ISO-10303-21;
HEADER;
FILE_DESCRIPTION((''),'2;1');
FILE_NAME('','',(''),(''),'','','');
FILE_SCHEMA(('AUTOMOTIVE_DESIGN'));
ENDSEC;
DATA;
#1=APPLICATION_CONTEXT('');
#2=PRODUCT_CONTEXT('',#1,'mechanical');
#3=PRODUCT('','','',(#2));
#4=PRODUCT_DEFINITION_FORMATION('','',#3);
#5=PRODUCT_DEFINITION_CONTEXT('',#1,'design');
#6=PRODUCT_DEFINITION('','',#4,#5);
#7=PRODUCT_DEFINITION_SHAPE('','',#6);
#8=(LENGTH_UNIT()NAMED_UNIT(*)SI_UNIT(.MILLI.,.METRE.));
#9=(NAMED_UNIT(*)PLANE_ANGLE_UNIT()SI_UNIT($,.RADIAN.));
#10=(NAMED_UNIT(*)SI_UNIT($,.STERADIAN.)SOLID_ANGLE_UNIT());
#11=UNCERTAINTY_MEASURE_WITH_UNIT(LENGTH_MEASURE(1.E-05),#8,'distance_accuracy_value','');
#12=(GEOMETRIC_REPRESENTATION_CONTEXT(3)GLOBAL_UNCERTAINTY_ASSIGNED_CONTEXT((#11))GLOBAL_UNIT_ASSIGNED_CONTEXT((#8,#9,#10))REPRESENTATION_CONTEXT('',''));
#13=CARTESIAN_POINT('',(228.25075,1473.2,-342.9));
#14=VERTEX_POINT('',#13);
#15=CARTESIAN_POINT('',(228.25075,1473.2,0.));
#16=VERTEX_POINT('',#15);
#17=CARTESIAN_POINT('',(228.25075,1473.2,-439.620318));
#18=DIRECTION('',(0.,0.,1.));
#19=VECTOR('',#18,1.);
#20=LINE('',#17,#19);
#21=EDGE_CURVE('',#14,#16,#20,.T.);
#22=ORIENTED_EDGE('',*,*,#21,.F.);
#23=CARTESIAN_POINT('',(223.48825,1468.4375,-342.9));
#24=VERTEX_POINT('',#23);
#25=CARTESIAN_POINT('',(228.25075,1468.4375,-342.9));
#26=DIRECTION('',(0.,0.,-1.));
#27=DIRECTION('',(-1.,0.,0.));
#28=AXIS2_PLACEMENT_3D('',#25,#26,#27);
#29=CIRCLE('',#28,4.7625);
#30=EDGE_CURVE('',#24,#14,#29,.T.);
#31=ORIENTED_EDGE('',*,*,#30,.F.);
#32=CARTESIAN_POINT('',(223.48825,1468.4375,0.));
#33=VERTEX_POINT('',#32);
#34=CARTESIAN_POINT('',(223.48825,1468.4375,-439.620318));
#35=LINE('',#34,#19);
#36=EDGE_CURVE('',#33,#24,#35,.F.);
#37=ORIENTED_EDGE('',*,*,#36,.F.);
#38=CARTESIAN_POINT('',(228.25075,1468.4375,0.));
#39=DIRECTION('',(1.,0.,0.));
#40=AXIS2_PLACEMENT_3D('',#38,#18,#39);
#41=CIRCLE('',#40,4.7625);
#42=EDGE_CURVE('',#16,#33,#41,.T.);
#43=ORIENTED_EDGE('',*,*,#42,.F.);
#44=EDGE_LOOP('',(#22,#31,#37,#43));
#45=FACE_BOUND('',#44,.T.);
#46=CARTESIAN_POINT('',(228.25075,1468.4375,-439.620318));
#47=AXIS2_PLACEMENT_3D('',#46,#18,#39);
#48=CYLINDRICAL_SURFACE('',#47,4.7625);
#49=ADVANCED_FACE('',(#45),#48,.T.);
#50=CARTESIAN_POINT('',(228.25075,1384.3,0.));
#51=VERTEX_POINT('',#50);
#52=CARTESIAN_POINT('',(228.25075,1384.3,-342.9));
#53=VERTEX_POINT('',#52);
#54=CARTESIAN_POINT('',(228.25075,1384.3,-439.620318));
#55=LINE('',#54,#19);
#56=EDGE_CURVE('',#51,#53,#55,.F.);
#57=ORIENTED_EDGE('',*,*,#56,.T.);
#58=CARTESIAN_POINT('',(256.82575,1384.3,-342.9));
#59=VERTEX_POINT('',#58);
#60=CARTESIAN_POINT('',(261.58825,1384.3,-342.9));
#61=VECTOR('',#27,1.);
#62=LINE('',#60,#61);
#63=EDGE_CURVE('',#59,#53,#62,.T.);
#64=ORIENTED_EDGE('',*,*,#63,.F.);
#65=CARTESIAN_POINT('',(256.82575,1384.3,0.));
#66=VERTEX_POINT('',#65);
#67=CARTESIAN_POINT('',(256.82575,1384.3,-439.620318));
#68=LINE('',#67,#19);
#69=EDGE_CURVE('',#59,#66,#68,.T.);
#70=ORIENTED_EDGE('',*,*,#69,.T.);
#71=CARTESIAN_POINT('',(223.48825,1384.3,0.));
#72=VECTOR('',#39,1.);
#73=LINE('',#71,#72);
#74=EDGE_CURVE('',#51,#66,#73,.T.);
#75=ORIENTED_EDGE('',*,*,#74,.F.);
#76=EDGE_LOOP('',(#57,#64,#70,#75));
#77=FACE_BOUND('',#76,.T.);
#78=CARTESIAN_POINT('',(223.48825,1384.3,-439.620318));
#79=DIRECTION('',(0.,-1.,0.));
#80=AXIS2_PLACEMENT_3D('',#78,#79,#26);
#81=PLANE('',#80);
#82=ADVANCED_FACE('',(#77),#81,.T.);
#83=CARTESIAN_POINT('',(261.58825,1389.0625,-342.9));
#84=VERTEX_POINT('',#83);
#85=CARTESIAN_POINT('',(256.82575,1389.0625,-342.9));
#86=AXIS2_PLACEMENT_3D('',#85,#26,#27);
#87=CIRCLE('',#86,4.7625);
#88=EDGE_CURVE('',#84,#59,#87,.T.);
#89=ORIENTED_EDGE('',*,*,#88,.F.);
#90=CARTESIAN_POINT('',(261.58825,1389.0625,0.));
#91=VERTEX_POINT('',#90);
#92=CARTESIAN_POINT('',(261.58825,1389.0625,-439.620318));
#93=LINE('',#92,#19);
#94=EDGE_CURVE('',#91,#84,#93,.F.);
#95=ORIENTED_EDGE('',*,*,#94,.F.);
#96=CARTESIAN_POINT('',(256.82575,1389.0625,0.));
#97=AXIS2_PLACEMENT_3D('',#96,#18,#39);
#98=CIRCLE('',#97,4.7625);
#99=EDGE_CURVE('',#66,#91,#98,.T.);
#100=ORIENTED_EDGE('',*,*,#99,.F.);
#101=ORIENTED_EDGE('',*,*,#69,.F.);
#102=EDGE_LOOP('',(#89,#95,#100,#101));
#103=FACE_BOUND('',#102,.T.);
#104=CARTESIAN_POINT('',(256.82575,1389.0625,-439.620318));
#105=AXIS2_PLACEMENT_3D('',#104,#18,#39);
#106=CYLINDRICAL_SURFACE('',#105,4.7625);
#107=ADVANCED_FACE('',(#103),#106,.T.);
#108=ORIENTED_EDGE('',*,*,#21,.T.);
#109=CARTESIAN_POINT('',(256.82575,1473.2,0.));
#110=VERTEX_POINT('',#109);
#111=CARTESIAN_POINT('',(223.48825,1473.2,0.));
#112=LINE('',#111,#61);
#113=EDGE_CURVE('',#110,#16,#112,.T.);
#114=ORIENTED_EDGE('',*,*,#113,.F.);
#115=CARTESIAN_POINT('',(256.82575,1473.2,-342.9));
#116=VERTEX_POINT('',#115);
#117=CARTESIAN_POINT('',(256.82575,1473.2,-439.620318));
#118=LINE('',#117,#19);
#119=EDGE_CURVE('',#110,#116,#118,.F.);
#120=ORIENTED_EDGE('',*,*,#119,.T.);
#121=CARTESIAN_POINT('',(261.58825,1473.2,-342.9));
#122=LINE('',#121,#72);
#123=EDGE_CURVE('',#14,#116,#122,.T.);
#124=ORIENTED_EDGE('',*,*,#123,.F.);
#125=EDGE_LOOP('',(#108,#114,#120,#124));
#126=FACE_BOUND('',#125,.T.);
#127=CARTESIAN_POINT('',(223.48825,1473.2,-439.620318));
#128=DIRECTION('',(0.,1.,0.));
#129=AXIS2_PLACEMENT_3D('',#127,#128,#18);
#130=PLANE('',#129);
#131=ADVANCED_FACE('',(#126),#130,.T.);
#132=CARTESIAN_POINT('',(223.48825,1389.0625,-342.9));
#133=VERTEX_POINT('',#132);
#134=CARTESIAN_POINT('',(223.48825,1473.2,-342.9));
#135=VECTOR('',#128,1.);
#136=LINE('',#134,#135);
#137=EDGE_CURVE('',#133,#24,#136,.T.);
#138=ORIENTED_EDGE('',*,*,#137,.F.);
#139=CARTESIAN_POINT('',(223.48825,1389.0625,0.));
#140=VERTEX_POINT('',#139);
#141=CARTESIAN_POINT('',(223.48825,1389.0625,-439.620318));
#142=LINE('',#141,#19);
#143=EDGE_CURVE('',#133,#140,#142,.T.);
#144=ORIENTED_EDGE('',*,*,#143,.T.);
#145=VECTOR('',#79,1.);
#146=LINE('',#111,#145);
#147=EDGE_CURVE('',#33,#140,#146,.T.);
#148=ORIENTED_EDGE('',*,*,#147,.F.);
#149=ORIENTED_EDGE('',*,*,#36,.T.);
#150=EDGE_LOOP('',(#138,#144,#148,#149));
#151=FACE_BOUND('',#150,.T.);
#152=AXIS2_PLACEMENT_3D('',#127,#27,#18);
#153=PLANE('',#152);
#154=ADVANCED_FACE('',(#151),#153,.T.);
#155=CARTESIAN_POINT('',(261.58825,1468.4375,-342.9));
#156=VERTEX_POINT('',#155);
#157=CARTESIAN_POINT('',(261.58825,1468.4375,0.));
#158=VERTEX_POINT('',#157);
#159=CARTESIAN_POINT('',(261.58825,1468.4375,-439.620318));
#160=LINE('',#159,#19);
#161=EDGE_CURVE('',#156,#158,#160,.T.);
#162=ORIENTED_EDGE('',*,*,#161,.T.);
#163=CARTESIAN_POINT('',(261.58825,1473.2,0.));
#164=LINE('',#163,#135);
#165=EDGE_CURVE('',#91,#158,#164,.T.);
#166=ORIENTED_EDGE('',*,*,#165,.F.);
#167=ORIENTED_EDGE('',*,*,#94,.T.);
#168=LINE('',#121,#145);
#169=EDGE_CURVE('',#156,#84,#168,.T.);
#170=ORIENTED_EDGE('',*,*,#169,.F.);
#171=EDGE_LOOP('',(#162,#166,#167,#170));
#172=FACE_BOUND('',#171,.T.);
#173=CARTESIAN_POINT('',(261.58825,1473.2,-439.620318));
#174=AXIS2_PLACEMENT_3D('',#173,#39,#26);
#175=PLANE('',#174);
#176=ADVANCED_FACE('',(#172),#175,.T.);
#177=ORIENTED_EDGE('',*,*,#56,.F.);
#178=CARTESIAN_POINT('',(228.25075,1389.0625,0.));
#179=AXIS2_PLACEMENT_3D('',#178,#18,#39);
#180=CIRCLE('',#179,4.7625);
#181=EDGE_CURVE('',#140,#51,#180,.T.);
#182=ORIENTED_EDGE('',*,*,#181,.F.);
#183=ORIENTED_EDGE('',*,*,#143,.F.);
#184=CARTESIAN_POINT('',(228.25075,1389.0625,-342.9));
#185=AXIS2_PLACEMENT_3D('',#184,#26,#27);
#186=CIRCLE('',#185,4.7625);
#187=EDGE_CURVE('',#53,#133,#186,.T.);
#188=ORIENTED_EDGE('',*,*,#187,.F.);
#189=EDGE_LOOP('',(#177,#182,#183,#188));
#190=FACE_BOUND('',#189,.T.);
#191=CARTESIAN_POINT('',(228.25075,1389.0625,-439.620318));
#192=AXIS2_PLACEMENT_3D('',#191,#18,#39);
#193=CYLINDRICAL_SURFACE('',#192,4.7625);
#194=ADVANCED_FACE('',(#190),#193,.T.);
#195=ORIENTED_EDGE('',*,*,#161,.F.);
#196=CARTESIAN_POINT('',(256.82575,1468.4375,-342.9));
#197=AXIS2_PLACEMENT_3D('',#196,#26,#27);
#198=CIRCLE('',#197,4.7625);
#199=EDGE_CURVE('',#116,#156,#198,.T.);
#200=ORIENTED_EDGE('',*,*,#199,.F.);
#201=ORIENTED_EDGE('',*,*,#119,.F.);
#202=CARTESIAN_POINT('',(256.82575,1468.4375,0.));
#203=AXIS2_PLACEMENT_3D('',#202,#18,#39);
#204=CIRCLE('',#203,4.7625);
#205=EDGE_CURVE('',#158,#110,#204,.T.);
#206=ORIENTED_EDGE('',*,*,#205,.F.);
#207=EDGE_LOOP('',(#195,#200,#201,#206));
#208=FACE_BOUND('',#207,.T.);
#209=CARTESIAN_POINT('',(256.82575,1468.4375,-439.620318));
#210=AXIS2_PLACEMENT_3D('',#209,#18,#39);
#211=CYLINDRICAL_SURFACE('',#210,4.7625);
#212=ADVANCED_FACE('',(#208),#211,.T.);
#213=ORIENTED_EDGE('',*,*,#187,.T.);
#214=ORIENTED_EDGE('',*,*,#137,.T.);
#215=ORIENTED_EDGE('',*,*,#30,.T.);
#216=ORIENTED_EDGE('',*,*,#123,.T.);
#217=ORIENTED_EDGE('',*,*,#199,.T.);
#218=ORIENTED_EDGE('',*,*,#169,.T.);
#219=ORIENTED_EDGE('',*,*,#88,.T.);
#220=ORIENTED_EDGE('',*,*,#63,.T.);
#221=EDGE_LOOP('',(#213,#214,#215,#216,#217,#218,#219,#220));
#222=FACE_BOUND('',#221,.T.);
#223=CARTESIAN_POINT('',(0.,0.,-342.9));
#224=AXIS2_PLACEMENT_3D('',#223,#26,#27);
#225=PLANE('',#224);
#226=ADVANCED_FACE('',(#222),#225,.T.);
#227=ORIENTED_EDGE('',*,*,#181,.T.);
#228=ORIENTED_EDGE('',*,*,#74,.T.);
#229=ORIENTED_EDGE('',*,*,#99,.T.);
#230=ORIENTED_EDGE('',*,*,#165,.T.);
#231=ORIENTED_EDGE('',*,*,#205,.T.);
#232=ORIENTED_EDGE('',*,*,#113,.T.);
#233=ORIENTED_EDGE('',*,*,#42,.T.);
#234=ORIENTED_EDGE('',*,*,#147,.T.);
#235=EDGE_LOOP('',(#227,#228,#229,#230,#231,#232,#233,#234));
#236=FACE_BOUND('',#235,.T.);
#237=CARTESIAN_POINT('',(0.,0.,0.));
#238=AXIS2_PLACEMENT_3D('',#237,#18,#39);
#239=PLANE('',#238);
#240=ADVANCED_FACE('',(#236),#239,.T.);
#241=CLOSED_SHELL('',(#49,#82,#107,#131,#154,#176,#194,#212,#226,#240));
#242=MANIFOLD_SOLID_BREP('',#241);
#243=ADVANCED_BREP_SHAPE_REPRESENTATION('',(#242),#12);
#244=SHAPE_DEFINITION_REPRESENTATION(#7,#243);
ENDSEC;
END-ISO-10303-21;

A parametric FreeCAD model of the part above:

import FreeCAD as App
import Part
import Sketcher

V = App.Vector
Q = App.Units.Quantity


def edges_at(feature, points):
    """Names of the edges that pass closest to the given points."""
    edges = feature.Shape.Edges
    near = lambda p: min(range(len(edges)), key=lambda i: edges[i].distToShape(Part.Vertex(*p))[0])
    return sorted({f"Edge{near(p) + 1}" for p in points})


def add_polygon(sketch, points):
    """Adds a closed chain of lines whose ends are joined by coincident constraints."""
    first, n = sketch.GeometryCount, len(points)
    for a, b in zip(points, points[1:] + points[:1]):
        sketch.addGeometry(Part.LineSegment(App.Vector(*a, 0), App.Vector(*b, 0)), False)
    for i in range(n):
        sketch.addConstraint(Sketcher.Constraint("Coincident", first + i, 2, first + (i + 1) % n, 1))

doc = App.newDocument("Part")
body = doc.addObject("PartDesign::Body", "Body")

# Sketch on XY plane
sketch1 = body.newObject("Sketcher::SketchObject", "Sketch")
sketch1.AttachmentSupport = (doc.getObject("XY_Plane"), [""])
sketch1.MapMode = "FlatFace"
add_polygon(sketch1, [(223.48825, 1473.2), (223.48825, 1384.3), (261.58825, 1384.3), (261.58825, 1473.2)])  # lines 0-3
sketch1.addConstraint([
    Sketcher.Constraint("Vertical", 0),
    Sketcher.Constraint("Horizontal", 1),
    Sketcher.Constraint("Vertical", 2),
    Sketcher.Constraint("Horizontal", 3),
    Sketcher.Constraint("DistanceX", 1, 1, 1, 2, Q("1.5 in")),
    Sketcher.Constraint("DistanceY", 0, 2, 0, 1, Q("3.5 in")),
    Sketcher.Constraint("DistanceY", -1, 1, 2, 2, Q("58 in")),
    Sketcher.Constraint("DistanceX", -1, 1, 0, 2, Q("223.48825 mm")),
])
pad1 = body.newObject("PartDesign::Pad", "Pad")
pad1.Profile = sketch1
pad1.Length = Q("13.5 in")
pad1.Reversed = True
doc.recompute()

fillet = body.newObject("PartDesign::Fillet", "Fillet")
fillet.Base = (pad1, edges_at(pad1, [
    (261.588, 1384.3, -171.45),
    (261.588, 1473.2, -171.45),
    (223.488, 1473.2, -171.45),
    (223.488, 1384.3, -171.45),
]))
fillet.Radius = Q("0.1875 in")

doc.recompute()
